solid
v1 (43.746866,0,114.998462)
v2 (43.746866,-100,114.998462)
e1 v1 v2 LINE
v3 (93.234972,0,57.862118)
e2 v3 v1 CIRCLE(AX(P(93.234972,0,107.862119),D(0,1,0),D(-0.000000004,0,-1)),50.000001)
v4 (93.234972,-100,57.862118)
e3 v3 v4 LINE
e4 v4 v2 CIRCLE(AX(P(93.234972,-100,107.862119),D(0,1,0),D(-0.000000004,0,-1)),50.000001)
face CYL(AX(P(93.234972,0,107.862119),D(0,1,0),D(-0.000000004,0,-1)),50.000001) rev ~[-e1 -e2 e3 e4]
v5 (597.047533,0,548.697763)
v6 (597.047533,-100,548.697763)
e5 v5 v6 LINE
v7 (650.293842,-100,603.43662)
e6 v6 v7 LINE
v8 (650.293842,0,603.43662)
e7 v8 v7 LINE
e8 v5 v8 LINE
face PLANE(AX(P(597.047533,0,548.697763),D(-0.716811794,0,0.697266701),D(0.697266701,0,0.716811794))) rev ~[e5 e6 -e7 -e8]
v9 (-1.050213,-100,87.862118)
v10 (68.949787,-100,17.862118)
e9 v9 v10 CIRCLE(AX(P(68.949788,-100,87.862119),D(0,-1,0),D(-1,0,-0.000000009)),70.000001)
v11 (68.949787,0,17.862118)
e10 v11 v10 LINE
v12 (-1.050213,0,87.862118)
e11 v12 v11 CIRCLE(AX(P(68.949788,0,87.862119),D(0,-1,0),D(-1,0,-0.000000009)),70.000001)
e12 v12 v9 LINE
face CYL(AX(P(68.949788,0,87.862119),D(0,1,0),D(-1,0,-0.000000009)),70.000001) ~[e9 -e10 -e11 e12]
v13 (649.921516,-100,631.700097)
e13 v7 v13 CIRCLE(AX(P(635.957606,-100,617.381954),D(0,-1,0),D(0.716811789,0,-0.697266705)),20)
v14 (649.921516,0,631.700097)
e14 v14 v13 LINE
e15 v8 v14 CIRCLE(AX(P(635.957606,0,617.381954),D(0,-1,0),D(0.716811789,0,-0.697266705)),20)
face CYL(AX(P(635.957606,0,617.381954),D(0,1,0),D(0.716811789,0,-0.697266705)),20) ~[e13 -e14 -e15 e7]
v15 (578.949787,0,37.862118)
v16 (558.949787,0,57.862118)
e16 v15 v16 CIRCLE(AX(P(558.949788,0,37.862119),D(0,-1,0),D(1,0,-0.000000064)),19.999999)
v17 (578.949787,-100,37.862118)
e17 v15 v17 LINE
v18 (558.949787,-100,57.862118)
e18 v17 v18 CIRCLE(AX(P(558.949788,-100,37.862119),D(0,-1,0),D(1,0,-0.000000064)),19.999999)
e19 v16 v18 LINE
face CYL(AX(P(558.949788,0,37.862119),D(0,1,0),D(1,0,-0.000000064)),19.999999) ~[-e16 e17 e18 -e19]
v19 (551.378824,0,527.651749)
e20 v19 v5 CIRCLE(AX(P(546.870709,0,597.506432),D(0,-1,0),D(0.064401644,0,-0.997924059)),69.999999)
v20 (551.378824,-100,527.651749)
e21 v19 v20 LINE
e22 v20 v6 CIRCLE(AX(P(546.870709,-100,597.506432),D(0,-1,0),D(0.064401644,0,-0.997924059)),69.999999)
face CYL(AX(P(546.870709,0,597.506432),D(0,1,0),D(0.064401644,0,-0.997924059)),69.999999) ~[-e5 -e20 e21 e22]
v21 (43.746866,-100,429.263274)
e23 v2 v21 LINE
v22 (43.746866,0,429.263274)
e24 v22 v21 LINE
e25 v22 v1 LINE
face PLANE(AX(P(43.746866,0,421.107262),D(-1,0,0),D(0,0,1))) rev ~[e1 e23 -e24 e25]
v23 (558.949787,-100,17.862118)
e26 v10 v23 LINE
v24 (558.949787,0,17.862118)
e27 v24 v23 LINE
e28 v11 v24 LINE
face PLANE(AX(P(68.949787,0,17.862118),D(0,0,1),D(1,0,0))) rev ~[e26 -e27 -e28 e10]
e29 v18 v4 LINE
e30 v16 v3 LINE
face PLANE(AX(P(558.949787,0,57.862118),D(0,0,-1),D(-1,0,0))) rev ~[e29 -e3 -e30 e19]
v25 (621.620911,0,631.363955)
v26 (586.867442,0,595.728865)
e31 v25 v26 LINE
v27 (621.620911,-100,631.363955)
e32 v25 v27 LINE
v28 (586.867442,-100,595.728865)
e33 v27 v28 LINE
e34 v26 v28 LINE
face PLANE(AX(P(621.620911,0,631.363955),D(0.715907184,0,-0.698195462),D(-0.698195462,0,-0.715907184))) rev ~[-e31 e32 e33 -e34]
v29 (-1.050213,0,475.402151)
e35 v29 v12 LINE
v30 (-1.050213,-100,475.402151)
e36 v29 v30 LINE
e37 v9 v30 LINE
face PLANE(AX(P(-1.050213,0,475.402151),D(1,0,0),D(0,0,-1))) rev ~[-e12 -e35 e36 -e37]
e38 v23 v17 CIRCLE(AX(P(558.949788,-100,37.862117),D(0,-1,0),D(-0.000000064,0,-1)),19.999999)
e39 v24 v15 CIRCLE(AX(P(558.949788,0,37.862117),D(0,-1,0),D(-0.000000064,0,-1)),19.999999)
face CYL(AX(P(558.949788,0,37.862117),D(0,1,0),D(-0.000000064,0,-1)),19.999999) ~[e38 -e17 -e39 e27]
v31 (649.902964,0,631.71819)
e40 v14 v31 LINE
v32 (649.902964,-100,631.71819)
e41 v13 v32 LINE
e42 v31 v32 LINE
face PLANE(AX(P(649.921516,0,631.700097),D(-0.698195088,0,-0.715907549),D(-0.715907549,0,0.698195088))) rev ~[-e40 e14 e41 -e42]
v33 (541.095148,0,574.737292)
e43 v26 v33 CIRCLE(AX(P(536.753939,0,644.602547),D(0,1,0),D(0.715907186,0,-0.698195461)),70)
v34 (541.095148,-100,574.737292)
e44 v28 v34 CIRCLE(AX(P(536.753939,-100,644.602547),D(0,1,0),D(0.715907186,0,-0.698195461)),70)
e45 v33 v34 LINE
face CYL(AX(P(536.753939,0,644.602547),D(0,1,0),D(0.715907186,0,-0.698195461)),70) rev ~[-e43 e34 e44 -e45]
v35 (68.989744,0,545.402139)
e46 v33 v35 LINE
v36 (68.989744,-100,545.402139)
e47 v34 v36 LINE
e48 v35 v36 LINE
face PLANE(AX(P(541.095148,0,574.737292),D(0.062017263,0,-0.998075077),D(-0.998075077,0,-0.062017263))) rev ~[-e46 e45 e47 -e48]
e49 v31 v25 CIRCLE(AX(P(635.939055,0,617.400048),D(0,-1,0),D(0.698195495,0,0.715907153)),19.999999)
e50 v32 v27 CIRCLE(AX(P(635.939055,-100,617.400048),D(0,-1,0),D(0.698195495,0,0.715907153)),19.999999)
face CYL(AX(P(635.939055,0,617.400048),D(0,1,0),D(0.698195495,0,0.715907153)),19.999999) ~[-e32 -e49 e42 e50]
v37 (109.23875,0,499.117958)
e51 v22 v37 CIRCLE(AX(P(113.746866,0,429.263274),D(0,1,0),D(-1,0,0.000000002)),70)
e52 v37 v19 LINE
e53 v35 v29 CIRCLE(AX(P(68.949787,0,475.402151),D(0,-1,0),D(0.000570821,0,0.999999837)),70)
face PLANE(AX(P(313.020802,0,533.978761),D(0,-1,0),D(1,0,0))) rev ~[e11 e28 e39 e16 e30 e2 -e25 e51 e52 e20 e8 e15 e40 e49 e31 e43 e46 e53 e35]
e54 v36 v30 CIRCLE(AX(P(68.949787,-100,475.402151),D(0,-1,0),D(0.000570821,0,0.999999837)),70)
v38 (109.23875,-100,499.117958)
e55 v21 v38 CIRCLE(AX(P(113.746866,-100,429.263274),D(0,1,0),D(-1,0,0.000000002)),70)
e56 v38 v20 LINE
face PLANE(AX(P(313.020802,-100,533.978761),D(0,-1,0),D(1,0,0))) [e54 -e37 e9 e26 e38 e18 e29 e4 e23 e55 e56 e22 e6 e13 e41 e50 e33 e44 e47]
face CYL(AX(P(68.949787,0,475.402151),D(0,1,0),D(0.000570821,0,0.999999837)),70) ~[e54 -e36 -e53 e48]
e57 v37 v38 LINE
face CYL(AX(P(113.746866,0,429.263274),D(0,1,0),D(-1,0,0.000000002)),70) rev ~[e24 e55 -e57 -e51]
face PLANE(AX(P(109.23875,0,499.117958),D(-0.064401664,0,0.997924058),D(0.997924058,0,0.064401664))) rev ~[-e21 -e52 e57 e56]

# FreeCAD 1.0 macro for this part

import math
import FreeCAD as App
import Part
import Sketcher

V = App.Vector
Q = App.Units.Quantity

doc = App.newDocument("Part")
body = doc.addObject("PartDesign::Body", "Body")

sketch1 = body.newObject("Sketcher::SketchObject", "Sketch")
sketch1.AttachmentSupport = (doc.getObject("XZ_Plane"), [""])
sketch1.MapMode = "FlatFace"
sketch1.addGeometry(Part.LineSegment(V(-1, 421, 0), V(-1, 88, 0)), False)
sketch1.addGeometry(Part.ArcOfCircle(Part.Circle(V(69, 88, 0), V(0, 0, 1), 70), math.radians(-180), math.radians(-90)), False)
sketch1.addGeometry(Part.LineSegment(V(69, 18, 0), V(559, 18, 0)), False)
sketch1.addGeometry(Part.ArcOfCircle(Part.Circle(V(559, 38, 0), V(0, 0, 1), 20), math.radians(-90), math.radians(0)), False)
sketch1.addGeometry(Part.ArcOfCircle(Part.Circle(V(559, 38, 0), V(0, 0, 1), 20), math.radians(0), math.radians(90)), False)
sketch1.addGeometry(Part.LineSegment(V(559, 58, 0), V(93, 58, 0)), False)
sketch1.addGeometry(Part.ArcOfCircle(Part.Circle(V(93, 108, 0), V(0, 0, 1), 50), math.radians(172), math.radians(270)), False)
sketch1.addGeometry(Part.LineSegment(V(44, 115, 0), V(44, 421, 0)), False)
sketch1.addGeometry(Part.LineSegment(V(44, 421, 0), V(-1, 421, 0)), False)
sketch1.addConstraint(Sketcher.Constraint("Tangent", 0, 2, 1, 1))
sketch1.addConstraint(Sketcher.Constraint("Tangent", 1, 2, 2, 1))
sketch1.addConstraint(Sketcher.Constraint("Tangent", 2, 2, 3, 1))
sketch1.addConstraint(Sketcher.Constraint("Tangent", 3, 2, 4, 1))
sketch1.addConstraint(Sketcher.Constraint("Tangent", 4, 2, 5, 1))
sketch1.addConstraint(Sketcher.Constraint("Tangent", 5, 2, 6, 2))
sketch1.addConstraint(Sketcher.Constraint("Coincident", 6, 1, 7, 1))
sketch1.addConstraint(Sketcher.Constraint("Coincident", 7, 2, 8, 1))
sketch1.addConstraint(Sketcher.Constraint("Coincident", 8, 2, 0, 1))
sketch1.addConstraint(Sketcher.Constraint("Vertical", 0))
sketch1.addConstraint(Sketcher.Constraint("Horizontal", 2))
sketch1.addConstraint(Sketcher.Constraint("Horizontal", 5))
sketch1.addConstraint(Sketcher.Constraint("Vertical", 7))
sketch1.addConstraint(Sketcher.Constraint("Horizontal", 8))
sketch1.addConstraint(Sketcher.Constraint("Equal", 3, 4))
sketch1.addConstraint(Sketcher.Constraint("Horizontal", 4, 3, 3, 2))
sketch1.addConstraint(Sketcher.Constraint("Radius", 1, Q("70.000001 mm")))
sketch1.addConstraint(Sketcher.Constraint("Radius", 3, Q("19.999999 mm")))
sketch1.addConstraint(Sketcher.Constraint("Radius", 6, Q("50.000001 mm")))
sketch1.addConstraint(Sketcher.Constraint("DistanceX", 2, 1, 2, 2, Q("490 mm")))
sketch1.addConstraint(Sketcher.Constraint("DistanceY", 7, 1, 7, 2, Q("306.1088 mm")))
sketch1.addConstraint(Sketcher.Constraint("DistanceX", 8, 2, 8, 1, Q("44.797079 mm")))
sketch1.addConstraint(Sketcher.Constraint("DistanceX", 5, 2, 5, 1, Q("465.714815 mm")))
sketch1.addConstraint(Sketcher.Constraint("DistanceY", -1, 1, 1, 3, Q("87.862119 mm")))
sketch1.addConstraint(Sketcher.Constraint("DistanceX", -1, 1, 3, 3, Q("558.949788 mm")))
pad1 = body.newObject("PartDesign::Pad", "Pad")
pad1.Profile = sketch1
pad1.Length = 100

sketch2 = body.newObject("Sketcher::SketchObject", "Sketch001")
sketch2.AttachmentSupport = (doc.getObject("XZ_Plane"), [""])
sketch2.MapMode = "FlatFace"
sketch2.addGeometry(Part.LineSegment(V(-1.05, 475.402, 0), V(-1.05, 421.107, 0)), False)
sketch2.addGeometry(Part.LineSegment(V(-1.05, 421.107, 0), V(43.747, 421.107, 0)), False)
sketch2.addGeometry(Part.LineSegment(V(43.747, 421.107, 0), V(43.747, 429.263, 0)), False)
sketch2.addGeometry(Part.ArcOfCircle(Part.Circle(V(113.747, 429.263, 0), V(0, 0, 1), 70), math.radians(94), math.radians(180)), False)
sketch2.addGeometry(Part.LineSegment(V(109.239, 499.118, 0), V(551.379, 527.652, 0)), False)
sketch2.addGeometry(Part.ArcOfCircle(Part.Circle(V(546.871, 597.506, 0), V(0, 0, 1), 70), math.radians(-86), math.radians(-44)), False)
sketch2.addGeometry(Part.LineSegment(V(597.048, 548.698, 0), V(650.294, 603.437, 0)), False)
sketch2.addGeometry(Part.ArcOfCircle(Part.Circle(V(635.958, 617.382, 0), V(0, 0, 1), 20), math.radians(-44), math.radians(46)), False)
sketch2.addGeometry(Part.LineSegment(V(649.922, 631.7, 0), V(649.903, 631.718, 0)), False)
sketch2.addGeometry(Part.ArcOfCircle(Part.Circle(V(635.939, 617.4, 0), V(0, 0, 1), 20), math.radians(46), math.radians(136)), False)
sketch2.addGeometry(Part.LineSegment(V(621.621, 631.364, 0), V(586.867, 595.729, 0)), False)
sketch2.addGeometry(Part.ArcOfCircle(Part.Circle(V(536.754, 644.603, 0), V(0, 0, 1), 70), math.radians(-86), math.radians(-44)), False)
sketch2.addGeometry(Part.LineSegment(V(541.095, 574.737, 0), V(68.99, 545.402, 0)), False)
sketch2.addGeometry(Part.ArcOfCircle(Part.Circle(V(68.95, 475.402, 0), V(0, 0, 1), 70), math.radians(90), math.radians(180)), False)
sketch2.addConstraint(Sketcher.Constraint("Coincident", 0, 2, 1, 1))
sketch2.addConstraint(Sketcher.Constraint("Coincident", 1, 2, 2, 1))
sketch2.addConstraint(Sketcher.Constraint("Tangent", 2, 2, 3, 2))
sketch2.addConstraint(Sketcher.Constraint("Tangent", 3, 1, 4, 1))
sketch2.addConstraint(Sketcher.Constraint("Tangent", 4, 2, 5, 1))
sketch2.addConstraint(Sketcher.Constraint("Tangent", 5, 2, 6, 1))
sketch2.addConstraint(Sketcher.Constraint("Tangent", 6, 2, 7, 1))
sketch2.addConstraint(Sketcher.Constraint("Tangent", 7, 2, 8, 1))
sketch2.addConstraint(Sketcher.Constraint("Coincident", 8, 2, 9, 1))
sketch2.addConstraint(Sketcher.Constraint("Tangent", 9, 2, 10, 1))
sketch2.addConstraint(Sketcher.Constraint("Tangent", 10, 2, 11, 2))
sketch2.addConstraint(Sketcher.Constraint("Tangent", 11, 1, 12, 1))
sketch2.addConstraint(Sketcher.Constraint("Coincident", 12, 2, 13, 1))
sketch2.addConstraint(Sketcher.Constraint("Tangent", 13, 2, 0, 1))
sketch2.addConstraint(Sketcher.Constraint("Vertical", 0))
sketch2.addConstraint(Sketcher.Constraint("Horizontal", 1))
sketch2.addConstraint(Sketcher.Constraint("Vertical", 2))
sketch2.addConstraint(Sketcher.Constraint("Equal", 3, 5))
sketch2.addConstraint(Sketcher.Constraint("Equal", 7, 9))
sketch2.addConstraint(Sketcher.Constraint("Equal", 5, 11))
sketch2.addConstraint(Sketcher.Constraint("Equal", 11, 13))
sketch2.addConstraint(Sketcher.Constraint("Radius", 3, Q("70 mm")))
sketch2.addConstraint(Sketcher.Constraint("Radius", 7, Q("20 mm")))
sketch2.addConstraint(Sketcher.Constraint("DistanceY", 7, 3, 9, 2, Q("13.982001 mm")))
sketch2.addConstraint(Sketcher.Constraint("DistanceX", 1, 1, 1, 2, Q("44.797079 mm")))
sketch2.addConstraint(Sketcher.Constraint("DistanceY", 0, 2, 0, 1, Q("54.294889 mm")))
sketch2.addConstraint(Sketcher.Constraint("DistanceY", 9, 3, 11, 3, Q("27.202499 mm")))
sketch2.addConstraint(Sketcher.Constraint("DistanceY", 4, 2, 9, 3, Q("89.748299 mm")))
sketch2.addConstraint(Sketcher.Constraint("Distance", 4, Q("443.059841 mm")))
sketch2.addConstraint(Sketcher.Constraint("Distance", 10, Q("49.776131 mm")))
sketch2.addConstraint(Sketcher.Constraint("DistanceY", 2, 1, 2, 2, Q("8.156012 mm")))
sketch2.addConstraint(Sketcher.Constraint("DistanceX", -1, 1, 5, 3, Q("546.870709 mm")))
sketch2.addConstraint(Sketcher.Constraint("DistanceX", -1, 1, 11, 3, Q("536.753939 mm")))
sketch2.addConstraint(Sketcher.Constraint("DistanceY", -1, 1, 13, 3, Q("475.402151 mm")))
sketch2.addConstraint(Sketcher.Constraint("DistanceY", -1, 1, 4, 2, Q("527.651749 mm")))
sketch2.addConstraint(Sketcher.Constraint("DistanceY", -1, 1, 8, 2, Q("631.71819 mm")))
sketch2.addConstraint(Sketcher.Constraint("DistanceX", 7, 3, 7, 2, Q("13.96391 mm")))
sketch2.addConstraint(Sketcher.Constraint("DistanceX", 2, 2, 12, 2, Q("25.242878 mm")))
pad2 = body.newObject("PartDesign::Pad", "Pad001")
pad2.Profile = sketch2
pad2.Length = 100

doc.recompute()
